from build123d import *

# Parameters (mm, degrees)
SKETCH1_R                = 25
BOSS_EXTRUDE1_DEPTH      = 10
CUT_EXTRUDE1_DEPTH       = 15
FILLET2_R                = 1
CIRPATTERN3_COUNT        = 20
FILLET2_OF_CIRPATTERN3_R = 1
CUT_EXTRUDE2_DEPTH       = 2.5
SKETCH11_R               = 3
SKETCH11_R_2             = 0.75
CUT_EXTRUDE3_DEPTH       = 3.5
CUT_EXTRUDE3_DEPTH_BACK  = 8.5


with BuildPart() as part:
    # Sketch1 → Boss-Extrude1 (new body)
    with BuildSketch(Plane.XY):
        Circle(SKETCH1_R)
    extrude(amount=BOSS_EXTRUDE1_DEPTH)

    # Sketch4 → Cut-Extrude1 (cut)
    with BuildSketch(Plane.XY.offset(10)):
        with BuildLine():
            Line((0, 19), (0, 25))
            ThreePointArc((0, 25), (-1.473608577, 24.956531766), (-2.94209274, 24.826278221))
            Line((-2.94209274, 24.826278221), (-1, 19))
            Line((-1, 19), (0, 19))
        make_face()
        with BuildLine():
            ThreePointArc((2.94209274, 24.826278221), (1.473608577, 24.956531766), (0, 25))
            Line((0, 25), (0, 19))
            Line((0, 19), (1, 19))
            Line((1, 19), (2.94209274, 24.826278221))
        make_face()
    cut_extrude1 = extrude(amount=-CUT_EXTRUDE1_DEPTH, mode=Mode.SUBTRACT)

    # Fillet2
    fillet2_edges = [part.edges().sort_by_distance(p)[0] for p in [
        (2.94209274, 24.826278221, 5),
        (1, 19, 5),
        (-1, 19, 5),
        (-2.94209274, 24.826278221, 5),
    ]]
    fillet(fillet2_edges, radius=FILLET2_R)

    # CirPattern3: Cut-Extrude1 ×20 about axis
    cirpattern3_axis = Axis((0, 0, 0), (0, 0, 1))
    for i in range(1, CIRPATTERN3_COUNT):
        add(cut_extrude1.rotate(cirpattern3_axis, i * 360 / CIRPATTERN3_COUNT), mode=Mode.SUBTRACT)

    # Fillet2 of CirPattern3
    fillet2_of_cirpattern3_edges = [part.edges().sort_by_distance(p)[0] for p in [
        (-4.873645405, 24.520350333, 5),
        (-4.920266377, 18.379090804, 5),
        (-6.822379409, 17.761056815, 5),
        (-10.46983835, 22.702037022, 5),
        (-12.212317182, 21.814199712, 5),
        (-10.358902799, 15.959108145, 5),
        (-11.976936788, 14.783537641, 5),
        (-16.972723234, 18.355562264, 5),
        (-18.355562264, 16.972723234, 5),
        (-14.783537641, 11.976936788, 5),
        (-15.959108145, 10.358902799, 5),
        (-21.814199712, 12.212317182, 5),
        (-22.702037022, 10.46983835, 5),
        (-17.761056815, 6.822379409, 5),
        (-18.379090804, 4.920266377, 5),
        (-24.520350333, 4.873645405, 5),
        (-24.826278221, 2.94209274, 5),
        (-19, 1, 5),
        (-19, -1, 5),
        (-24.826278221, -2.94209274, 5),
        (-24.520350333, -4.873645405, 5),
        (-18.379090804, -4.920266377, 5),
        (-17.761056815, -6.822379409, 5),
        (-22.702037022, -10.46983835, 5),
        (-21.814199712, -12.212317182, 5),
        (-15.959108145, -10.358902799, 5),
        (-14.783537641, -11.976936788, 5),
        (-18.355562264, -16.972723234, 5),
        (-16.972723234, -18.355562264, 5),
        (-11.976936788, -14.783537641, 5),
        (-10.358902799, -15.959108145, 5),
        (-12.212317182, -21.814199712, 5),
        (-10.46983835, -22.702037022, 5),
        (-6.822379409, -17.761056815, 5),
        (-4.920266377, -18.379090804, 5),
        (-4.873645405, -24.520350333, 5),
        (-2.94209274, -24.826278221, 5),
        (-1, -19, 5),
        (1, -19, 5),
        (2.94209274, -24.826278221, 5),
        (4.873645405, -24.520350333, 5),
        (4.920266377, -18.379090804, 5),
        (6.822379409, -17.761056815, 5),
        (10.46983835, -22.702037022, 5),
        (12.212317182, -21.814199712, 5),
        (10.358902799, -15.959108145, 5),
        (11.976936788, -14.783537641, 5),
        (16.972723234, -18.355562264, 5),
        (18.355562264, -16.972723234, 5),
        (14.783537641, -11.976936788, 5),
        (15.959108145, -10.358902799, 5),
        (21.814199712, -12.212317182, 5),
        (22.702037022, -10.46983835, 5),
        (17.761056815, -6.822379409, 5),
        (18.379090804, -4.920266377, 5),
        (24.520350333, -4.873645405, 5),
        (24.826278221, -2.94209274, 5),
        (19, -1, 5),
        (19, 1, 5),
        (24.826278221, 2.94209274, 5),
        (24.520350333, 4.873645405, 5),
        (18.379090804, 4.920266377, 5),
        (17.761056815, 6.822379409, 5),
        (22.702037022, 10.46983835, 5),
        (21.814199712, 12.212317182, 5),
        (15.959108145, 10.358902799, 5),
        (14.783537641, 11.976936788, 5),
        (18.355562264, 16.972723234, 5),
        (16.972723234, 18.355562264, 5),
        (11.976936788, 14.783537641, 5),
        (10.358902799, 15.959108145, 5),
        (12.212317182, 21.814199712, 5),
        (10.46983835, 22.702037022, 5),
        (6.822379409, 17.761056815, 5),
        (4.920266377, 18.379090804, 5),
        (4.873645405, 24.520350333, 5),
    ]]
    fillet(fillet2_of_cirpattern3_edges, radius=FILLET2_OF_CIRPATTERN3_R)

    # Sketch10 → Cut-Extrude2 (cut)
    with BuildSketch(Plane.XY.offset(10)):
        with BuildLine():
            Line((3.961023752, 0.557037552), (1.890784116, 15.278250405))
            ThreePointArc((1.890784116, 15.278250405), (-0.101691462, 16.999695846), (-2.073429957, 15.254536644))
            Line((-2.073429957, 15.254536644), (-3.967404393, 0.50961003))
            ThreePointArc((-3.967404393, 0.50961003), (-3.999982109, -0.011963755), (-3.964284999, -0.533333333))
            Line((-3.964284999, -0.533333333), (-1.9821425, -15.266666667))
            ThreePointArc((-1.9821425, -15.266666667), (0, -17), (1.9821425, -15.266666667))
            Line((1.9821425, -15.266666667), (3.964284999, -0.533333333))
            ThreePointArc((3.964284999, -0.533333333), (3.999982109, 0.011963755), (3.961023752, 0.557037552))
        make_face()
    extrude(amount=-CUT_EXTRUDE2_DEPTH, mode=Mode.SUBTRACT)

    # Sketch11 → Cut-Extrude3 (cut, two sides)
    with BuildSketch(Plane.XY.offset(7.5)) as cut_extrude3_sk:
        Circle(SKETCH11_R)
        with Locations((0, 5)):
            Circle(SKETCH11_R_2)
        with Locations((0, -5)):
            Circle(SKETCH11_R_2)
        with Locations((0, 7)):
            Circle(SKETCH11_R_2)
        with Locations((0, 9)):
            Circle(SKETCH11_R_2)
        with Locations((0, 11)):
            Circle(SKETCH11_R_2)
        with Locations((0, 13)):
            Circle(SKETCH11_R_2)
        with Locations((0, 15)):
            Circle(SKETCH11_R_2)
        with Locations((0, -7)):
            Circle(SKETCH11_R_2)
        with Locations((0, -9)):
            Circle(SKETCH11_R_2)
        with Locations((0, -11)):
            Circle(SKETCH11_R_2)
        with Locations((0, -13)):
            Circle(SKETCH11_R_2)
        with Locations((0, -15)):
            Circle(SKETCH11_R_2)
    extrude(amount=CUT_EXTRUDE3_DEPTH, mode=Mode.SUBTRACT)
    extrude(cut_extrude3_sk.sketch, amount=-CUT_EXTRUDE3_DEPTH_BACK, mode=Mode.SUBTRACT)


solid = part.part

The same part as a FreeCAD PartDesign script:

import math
import FreeCAD as App
import Part
import Sketcher

V = App.Vector
Q = App.Units.Quantity


def edges_at(feature, points):
    """Names of the edges that pass closest to the given points."""
    edges = feature.Shape.Edges
    near = lambda p: min(range(len(edges)), key=lambda i: edges[i].distToShape(Part.Vertex(*p))[0])
    return sorted({f"Edge{near(p) + 1}" for p in points})

doc = App.newDocument("Part")
params = doc.addObject("Spreadsheet::Sheet", "Params")
for row, (alias, value) in enumerate([
    ("sketch1_diameter", "50 mm"),
    ("pad1_length", "10 mm"),
    ("sketch2_radius", "25 mm"),
    ("sketch2_width", "2 mm"),
    ("pocket1_length", "15 mm"),
    ("fillet_radius", "1 mm"),
    ("fillet2_radius", "1 mm"),
    ("sketch3_radius", "2 mm"),
    ("sketch3_radius2", "4 mm"),
    ("sketch3_radius3", "2 mm"),
    ("sketch3_radius4", "4 mm"),
    ("pocket2_length", "2.5 mm"),
    ("sketch4_diameter", "6 mm"),
    ("sketch4_diameter2", "1.5 mm"),
], start=1):
    params.set(f"A{row}", alias)
    params.set(f"B{row}", "=" + value)
    params.setAlias(f"B{row}", alias)

body = doc.addObject("PartDesign::Body", "Body")

sketch1 = body.newObject("Sketcher::SketchObject", "Sketch")
sketch1.AttachmentSupport = (doc.getObject("XY_Plane"), [""])
sketch1.MapMode = "FlatFace"
sketch1.addGeometry(Part.Circle(V(0, 0, 0), V(0, 0, 1), 25), False)
sketch1.addConstraint(Sketcher.Constraint("Coincident", 0, 3, -1, 1))
sketch1.addConstraint(Sketcher.Constraint("Diameter", 0, Q("50 mm")))
sketch1.setExpression("Constraints[1]", "Params.sketch1_diameter")
pad1 = body.newObject("PartDesign::Pad", "Pad")
pad1.Profile = sketch1
pad1.setExpression("Length", "Params.pad1_length")

sketch2 = body.newObject("Sketcher::SketchObject", "Sketch001")
sketch2.AttachmentSupport = (doc.getObject("XY_Plane"), [""])
sketch2.MapMode = "FlatFace"
sketch2.AttachmentOffset = App.Placement(V(0, 0, 10), App.Rotation())
sketch2.addGeometry(Part.ArcOfCircle(Part.Circle(V(0, 0, 0), V(0, 0, 1), 25), math.radians(90), math.radians(96.76)), False)
sketch2.addGeometry(Part.LineSegment(V(-2.9, 24.8, 0), V(-1, 19, 0)), False)
sketch2.addGeometry(Part.LineSegment(V(-1, 19, 0), V(1, 19, 0)), False)
sketch2.addGeometry(Part.LineSegment(V(1, 19, 0), V(2.9, 24.8, 0)), False)
sketch2.addGeometry(Part.ArcOfCircle(Part.Circle(V(0, 0, 0), V(0, 0, 1), 25), math.radians(83.24), math.radians(90)), False)
sketch2.addConstraint(Sketcher.Constraint("Coincident", 0, 2, 1, 1))
sketch2.addConstraint(Sketcher.Constraint("Coincident", 1, 2, 2, 1))
sketch2.addConstraint(Sketcher.Constraint("Coincident", 2, 2, 3, 1))
sketch2.addConstraint(Sketcher.Constraint("Coincident", 3, 2, 4, 1))
sketch2.addConstraint(Sketcher.Constraint("Tangent", 4, 2, 0, 1))
sketch2.addConstraint(Sketcher.Constraint("Horizontal", 2))
sketch2.addConstraint(Sketcher.Constraint("Coincident", 0, 3, -1, 1))
sketch2.addConstraint(Sketcher.Constraint("Equal", 0, 4))
sketch2.addConstraint(Sketcher.Constraint("PointOnObject", 4, 2, -2))
sketch2.addConstraint(Sketcher.Constraint("Horizontal", 0, 2, 3, 2))
sketch2.addConstraint(Sketcher.Constraint("Equal", 1, 3))
sketch2.addConstraint(Sketcher.Constraint("Radius", 0, Q("25 mm")))
sketch2.addConstraint(Sketcher.Constraint("DistanceX", 2, 1, 2, 2, Q("2 mm")))
sketch2.addConstraint(Sketcher.Constraint("DistanceY", -1, 1, 1, 2, Q("19 mm")))
sketch2.addConstraint(Sketcher.Constraint("DistanceY", -1, 1, 0, 2, Q("24.826278 mm")))
sketch2.setExpression("Constraints[11]", "Params.sketch2_radius")
sketch2.setExpression("Constraints[12]", "Params.sketch2_width")
pocket1 = body.newObject("PartDesign::Pocket", "Pocket")
pocket1.Profile = sketch2
pocket1.setExpression("Length", "Params.pocket1_length")
doc.recompute()

fillet = body.newObject("PartDesign::Fillet", "Fillet")
fillet.Base = (pocket1, edges_at(pocket1, [
    (2.942, 24.826, 5),
    (1, 19, 5),
    (-1, 19, 5),
    (-2.942, 24.826, 5),
]))
fillet.setExpression("Radius", "Params.fillet_radius")
doc.recompute()

polarpattern = body.newObject("PartDesign::PolarPattern", "PolarPattern")
polarpattern.Originals = [pocket1]
polarpattern.Axis = (doc.getObject("Z_Axis"), [""])
polarpattern.Angle = 360
polarpattern.Occurrences = 20
body.Tip = polarpattern
doc.recompute()

fillet2 = body.newObject("PartDesign::Fillet", "Fillet001")
fillet2.Base = (polarpattern, edges_at(polarpattern, [
    (-4.874, 24.52, 5),
    (-4.92, 18.379, 5),
    (-6.822, 17.761, 5),
    (-10.47, 22.702, 5),
    (-12.212, 21.814, 5),
    (-10.359, 15.959, 5),
    (-11.977, 14.784, 5),
    (-16.973, 18.356, 5),
    (-18.356, 16.973, 5),
    (-14.784, 11.977, 5),
    (-15.959, 10.359, 5),
    (-21.814, 12.212, 5),
    (-22.702, 10.47, 5),
    (-17.761, 6.822, 5),
    (-18.379, 4.92, 5),
    (-24.52, 4.874, 5),
    (-24.826, 2.942, 5),
    (-19, 1, 5),
    (-19, -1, 5),
    (-24.826, -2.942, 5),
    (-24.52, -4.874, 5),
    (-18.379, -4.92, 5),
    (-17.761, -6.822, 5),
    (-22.702, -10.47, 5),
    (-21.814, -12.212, 5),
    (-15.959, -10.359, 5),
    (-14.784, -11.977, 5),
    (-18.356, -16.973, 5),
    (-16.973, -18.356, 5),
    (-11.977, -14.784, 5),
    (-10.359, -15.959, 5),
    (-12.212, -21.814, 5),
    (-10.47, -22.702, 5),
    (-6.822, -17.761, 5),
    (-4.92, -18.379, 5),
    (-4.874, -24.52, 5),
    (-2.942, -24.826, 5),
    (-1, -19, 5),
    (1, -19, 5),
    (2.942, -24.826, 5),
    (4.874, -24.52, 5),
    (4.92, -18.379, 5),
    (6.822, -17.761, 5),
    (10.47, -22.702, 5),
    (12.212, -21.814, 5),
    (10.359, -15.959, 5),
    (11.977, -14.784, 5),
    (16.973, -18.356, 5),
    (18.356, -16.973, 5),
    (14.784, -11.977, 5),
    (15.959, -10.359, 5),
    (21.814, -12.212, 5),
    (22.702, -10.47, 5),
    (17.761, -6.822, 5),
    (18.379, -4.92, 5),
    (24.52, -4.874, 5),
    (24.826, -2.942, 5),
    (19, -1, 5),
    (19, 1, 5),
    (24.826, 2.942, 5),
    (24.52, 4.874, 5),
    (18.379, 4.92, 5),
    (17.761, 6.822, 5),
    (22.702, 10.47, 5),
    (21.814, 12.212, 5),
    (15.959, 10.359, 5),
    (14.784, 11.977, 5),
    (18.356, 16.973, 5),
    (16.973, 18.356, 5),
    (11.977, 14.784, 5),
    (10.359, 15.959, 5),
    (12.212, 21.814, 5),
    (10.47, 22.702, 5),
    (6.822, 17.761, 5),
    (4.92, 18.379, 5),
    (4.874, 24.52, 5),
]))
fillet2.setExpression("Radius", "Params.fillet2_radius")

sketch3 = body.newObject("Sketcher::SketchObject", "Sketch002")
sketch3.AttachmentSupport = (doc.getObject("XY_Plane"), [""])
sketch3.MapMode = "FlatFace"
sketch3.AttachmentOffset = App.Placement(V(0, 0, 10), App.Rotation())
sketch3.addGeometry(Part.LineSegment(V(3.961024, 0.557038, 0), V(1.890784, 15.27825, 0)), False)
sketch3.addGeometry(Part.ArcOfCircle(Part.Circle(V(-0.089728, 14.999732, 0), V(0, 0, 1), 2), math.radians(8.004993), math.radians(172.680481)), False)
sketch3.addGeometry(Part.LineSegment(V(-2.07343, 15.254537, 0), V(-3.967404, 0.50961, 0)), False)
sketch3.addGeometry(Part.ArcOfCircle(Part.Circle(V(0, 0, 0), V(0, 0, 1), 4), math.radians(172.680481), math.radians(187.662256)), False)
sketch3.addGeometry(Part.LineSegment(V(-3.964285, -0.533333, 0), V(-1.982142, -15.266667, 0)), False)
sketch3.addGeometry(Part.ArcOfCircle(Part.Circle(V(0, -15, 0), V(0, 0, 1), 2), math.radians(-172.337744), math.radians(-7.662256)), False)
sketch3.addGeometry(Part.LineSegment(V(1.982142, -15.266667, 0), V(3.964285, -0.533333, 0)), False)
sketch3.addGeometry(Part.ArcOfCircle(Part.Circle(V(0, 0, 0), V(0, 0, 1), 4), math.radians(-7.662256), math.radians(8.004993)), False)
sketch3.addConstraint(Sketcher.Constraint("Coincident", 0, 2, 1, 1))
sketch3.addConstraint(Sketcher.Constraint("Coincident", 1, 2, 2, 1))
sketch3.addConstraint(Sketcher.Constraint("Coincident", 2, 2, 3, 1))
sketch3.addConstraint(Sketcher.Constraint("Coincident", 3, 2, 4, 1))
sketch3.addConstraint(Sketcher.Constraint("Coincident", 4, 2, 5, 1))
sketch3.addConstraint(Sketcher.Constraint("Coincident", 5, 2, 6, 1))
sketch3.addConstraint(Sketcher.Constraint("Coincident", 6, 2, 7, 1))
sketch3.addConstraint(Sketcher.Constraint("Coincident", 7, 2, 0, 1))
sketch3.addConstraint(Sketcher.Constraint("Coincident", 3, 3, -1, 1))
sketch3.addConstraint(Sketcher.Constraint("Coincident", 7, 3, -1, 1))
sketch3.addConstraint(Sketcher.Constraint("PointOnObject", 5, 3, -2))
sketch3.addConstraint(Sketcher.Constraint("Radius", 1, Q("2 mm")))
sketch3.addConstraint(Sketcher.Constraint("Radius", 3, Q("4 mm")))
sketch3.addConstraint(Sketcher.Constraint("Radius", 5, Q("2 mm")))
sketch3.addConstraint(Sketcher.Constraint("Radius", 7, Q("4 mm")))
sketch3.addConstraint(Sketcher.Constraint("DistanceY", 5, 3, -1, 1, Q("15 mm")))
sketch3.addConstraint(Sketcher.Constraint("Distance", 0, Q("14.866069 mm")))
sketch3.addConstraint(Sketcher.Constraint("Distance", 2, Q("14.866069 mm")))
sketch3.addConstraint(Sketcher.Constraint("Distance", 4, Q("14.866069 mm")))
sketch3.addConstraint(Sketcher.Constraint("Distance", 6, Q("14.866069 mm")))
sketch3.addConstraint(Sketcher.Constraint("DistanceY", -1, 1, 1, 3, Q("14.999732 mm")))
sketch3.addConstraint(Sketcher.Constraint("DistanceY", -1, 1, 0, 2, Q("15.27825 mm")))
sketch3.addConstraint(Sketcher.Constraint("DistanceX", 1, 2, -1, 1, Q("2.07343 mm")))
sketch3.addConstraint(Sketcher.Constraint("DistanceY", -1, 1, 2, 2, Q("0.50961 mm")))
sketch3.addConstraint(Sketcher.Constraint("DistanceX", 2, 2, 3, 2, Q("0.003119 mm")))
sketch3.addConstraint(Sketcher.Constraint("DistanceX", 3, 2, 6, 2, Q("7.92857 mm")))
sketch3.setExpression("Constraints[11]", "Params.sketch3_radius")
sketch3.setExpression("Constraints[12]", "Params.sketch3_radius2")
sketch3.setExpression("Constraints[13]", "Params.sketch3_radius3")
sketch3.setExpression("Constraints[14]", "Params.sketch3_radius4")
pocket2 = body.newObject("PartDesign::Pocket", "Pocket001")
pocket2.Profile = sketch3
pocket2.setExpression("Length", "Params.pocket2_length")

sketch4 = body.newObject("Sketcher::SketchObject", "Sketch003")
sketch4.AttachmentSupport = (doc.getObject("XY_Plane"), [""])
sketch4.MapMode = "FlatFace"
sketch4.AttachmentOffset = App.Placement(V(0, 0, 7.5), App.Rotation())
sketch4.addGeometry(Part.Circle(V(0, 0, 0), V(0, 0, 1), 3), False)
sketch4.addGeometry(Part.Circle(V(0, 5, 0), V(0, 0, 1), 0.8), False)
sketch4.addGeometry(Part.Circle(V(0, -5, 0), V(0, 0, 1), 0.8), False)
sketch4.addGeometry(Part.Circle(V(0, 7, 0), V(0, 0, 1), 0.8), False)
sketch4.addGeometry(Part.Circle(V(0, 9, 0), V(0, 0, 1), 0.8), False)
sketch4.addGeometry(Part.Circle(V(0, 11, 0), V(0, 0, 1), 0.8), False)
sketch4.addGeometry(Part.Circle(V(0, 13, 0), V(0, 0, 1), 0.8), False)
sketch4.addGeometry(Part.Circle(V(0, 15, 0), V(0, 0, 1), 0.8), False)
sketch4.addGeometry(Part.Circle(V(0, -7, 0), V(0, 0, 1), 0.8), False)
sketch4.addGeometry(Part.Circle(V(0, -9, 0), V(0, 0, 1), 0.8), False)
sketch4.addGeometry(Part.Circle(V(0, -11, 0), V(0, 0, 1), 0.8), False)
sketch4.addGeometry(Part.Circle(V(0, -13, 0), V(0, 0, 1), 0.8), False)
sketch4.addGeometry(Part.Circle(V(0, -15, 0), V(0, 0, 1), 0.8), False)
sketch4.addConstraint(Sketcher.Constraint("Coincident", 0, 3, -1, 1))
sketch4.addConstraint(Sketcher.Constraint("Equal", 1, 2))
sketch4.addConstraint(Sketcher.Constraint("Equal", 2, 3))
sketch4.addConstraint(Sketcher.Constraint("Equal", 3, 4))
sketch4.addConstraint(Sketcher.Constraint("Equal", 4, 5))
sketch4.addConstraint(Sketcher.Constraint("Equal", 5, 6))
sketch4.addConstraint(Sketcher.Constraint("Equal", 6, 7))
sketch4.addConstraint(Sketcher.Constraint("Equal", 7, 8))
sketch4.addConstraint(Sketcher.Constraint("Equal", 8, 9))
sketch4.addConstraint(Sketcher.Constraint("Equal", 9, 10))
sketch4.addConstraint(Sketcher.Constraint("Equal", 10, 11))
sketch4.addConstraint(Sketcher.Constraint("Equal", 11, 12))
sketch4.addConstraint(Sketcher.Constraint("Symmetric", 1, 3, 2, 3, -1, 1))
sketch4.addConstraint(Sketcher.Constraint("Symmetric", 3, 3, 8, 3, -1, 1))
sketch4.addConstraint(Sketcher.Constraint("Symmetric", 4, 3, 9, 3, -1, 1))
sketch4.addConstraint(Sketcher.Constraint("Symmetric", 5, 3, 10, 3, -1, 1))
sketch4.addConstraint(Sketcher.Constraint("Symmetric", 6, 3, 11, 3, -1, 1))
sketch4.addConstraint(Sketcher.Constraint("Symmetric", 7, 3, 12, 3, -1, 1))
sketch4.addConstraint(Sketcher.Constraint("PointOnObject", 1, 3, -2))
sketch4.addConstraint(Sketcher.Constraint("PointOnObject", 3, 3, -2))
sketch4.addConstraint(Sketcher.Constraint("PointOnObject", 4, 3, -2))
sketch4.addConstraint(Sketcher.Constraint("PointOnObject", 5, 3, -2))
sketch4.addConstraint(Sketcher.Constraint("PointOnObject", 6, 3, -2))
sketch4.addConstraint(Sketcher.Constraint("PointOnObject", 7, 3, -2))
sketch4.addConstraint(Sketcher.Constraint("Diameter", 0, Q("6 mm")))
sketch4.addConstraint(Sketcher.Constraint("Diameter", 1, Q("1.5 mm")))
sketch4.addConstraint(Sketcher.Constraint("DistanceY", -1, 1, 1, 3, Q("5 mm")))
sketch4.addConstraint(Sketcher.Constraint("DistanceY", -1, 1, 3, 3, Q("7 mm")))
sketch4.addConstraint(Sketcher.Constraint("DistanceY", -1, 1, 4, 3, Q("9 mm")))
sketch4.addConstraint(Sketcher.Constraint("DistanceY", -1, 1, 5, 3, Q("11 mm")))
sketch4.addConstraint(Sketcher.Constraint("DistanceY", -1, 1, 6, 3, Q("13 mm")))
sketch4.addConstraint(Sketcher.Constraint("DistanceY", -1, 1, 7, 3, Q("15 mm")))
sketch4.setExpression("Constraints[24]", "Params.sketch4_diameter")
sketch4.setExpression("Constraints[25]", "Params.sketch4_diameter2")
pocket3 = body.newObject("PartDesign::Pocket", "Pocket002")
pocket3.Profile = sketch4
pocket3.Type = "ThroughAll"
pocket3.Midplane = True

doc.recompute()
